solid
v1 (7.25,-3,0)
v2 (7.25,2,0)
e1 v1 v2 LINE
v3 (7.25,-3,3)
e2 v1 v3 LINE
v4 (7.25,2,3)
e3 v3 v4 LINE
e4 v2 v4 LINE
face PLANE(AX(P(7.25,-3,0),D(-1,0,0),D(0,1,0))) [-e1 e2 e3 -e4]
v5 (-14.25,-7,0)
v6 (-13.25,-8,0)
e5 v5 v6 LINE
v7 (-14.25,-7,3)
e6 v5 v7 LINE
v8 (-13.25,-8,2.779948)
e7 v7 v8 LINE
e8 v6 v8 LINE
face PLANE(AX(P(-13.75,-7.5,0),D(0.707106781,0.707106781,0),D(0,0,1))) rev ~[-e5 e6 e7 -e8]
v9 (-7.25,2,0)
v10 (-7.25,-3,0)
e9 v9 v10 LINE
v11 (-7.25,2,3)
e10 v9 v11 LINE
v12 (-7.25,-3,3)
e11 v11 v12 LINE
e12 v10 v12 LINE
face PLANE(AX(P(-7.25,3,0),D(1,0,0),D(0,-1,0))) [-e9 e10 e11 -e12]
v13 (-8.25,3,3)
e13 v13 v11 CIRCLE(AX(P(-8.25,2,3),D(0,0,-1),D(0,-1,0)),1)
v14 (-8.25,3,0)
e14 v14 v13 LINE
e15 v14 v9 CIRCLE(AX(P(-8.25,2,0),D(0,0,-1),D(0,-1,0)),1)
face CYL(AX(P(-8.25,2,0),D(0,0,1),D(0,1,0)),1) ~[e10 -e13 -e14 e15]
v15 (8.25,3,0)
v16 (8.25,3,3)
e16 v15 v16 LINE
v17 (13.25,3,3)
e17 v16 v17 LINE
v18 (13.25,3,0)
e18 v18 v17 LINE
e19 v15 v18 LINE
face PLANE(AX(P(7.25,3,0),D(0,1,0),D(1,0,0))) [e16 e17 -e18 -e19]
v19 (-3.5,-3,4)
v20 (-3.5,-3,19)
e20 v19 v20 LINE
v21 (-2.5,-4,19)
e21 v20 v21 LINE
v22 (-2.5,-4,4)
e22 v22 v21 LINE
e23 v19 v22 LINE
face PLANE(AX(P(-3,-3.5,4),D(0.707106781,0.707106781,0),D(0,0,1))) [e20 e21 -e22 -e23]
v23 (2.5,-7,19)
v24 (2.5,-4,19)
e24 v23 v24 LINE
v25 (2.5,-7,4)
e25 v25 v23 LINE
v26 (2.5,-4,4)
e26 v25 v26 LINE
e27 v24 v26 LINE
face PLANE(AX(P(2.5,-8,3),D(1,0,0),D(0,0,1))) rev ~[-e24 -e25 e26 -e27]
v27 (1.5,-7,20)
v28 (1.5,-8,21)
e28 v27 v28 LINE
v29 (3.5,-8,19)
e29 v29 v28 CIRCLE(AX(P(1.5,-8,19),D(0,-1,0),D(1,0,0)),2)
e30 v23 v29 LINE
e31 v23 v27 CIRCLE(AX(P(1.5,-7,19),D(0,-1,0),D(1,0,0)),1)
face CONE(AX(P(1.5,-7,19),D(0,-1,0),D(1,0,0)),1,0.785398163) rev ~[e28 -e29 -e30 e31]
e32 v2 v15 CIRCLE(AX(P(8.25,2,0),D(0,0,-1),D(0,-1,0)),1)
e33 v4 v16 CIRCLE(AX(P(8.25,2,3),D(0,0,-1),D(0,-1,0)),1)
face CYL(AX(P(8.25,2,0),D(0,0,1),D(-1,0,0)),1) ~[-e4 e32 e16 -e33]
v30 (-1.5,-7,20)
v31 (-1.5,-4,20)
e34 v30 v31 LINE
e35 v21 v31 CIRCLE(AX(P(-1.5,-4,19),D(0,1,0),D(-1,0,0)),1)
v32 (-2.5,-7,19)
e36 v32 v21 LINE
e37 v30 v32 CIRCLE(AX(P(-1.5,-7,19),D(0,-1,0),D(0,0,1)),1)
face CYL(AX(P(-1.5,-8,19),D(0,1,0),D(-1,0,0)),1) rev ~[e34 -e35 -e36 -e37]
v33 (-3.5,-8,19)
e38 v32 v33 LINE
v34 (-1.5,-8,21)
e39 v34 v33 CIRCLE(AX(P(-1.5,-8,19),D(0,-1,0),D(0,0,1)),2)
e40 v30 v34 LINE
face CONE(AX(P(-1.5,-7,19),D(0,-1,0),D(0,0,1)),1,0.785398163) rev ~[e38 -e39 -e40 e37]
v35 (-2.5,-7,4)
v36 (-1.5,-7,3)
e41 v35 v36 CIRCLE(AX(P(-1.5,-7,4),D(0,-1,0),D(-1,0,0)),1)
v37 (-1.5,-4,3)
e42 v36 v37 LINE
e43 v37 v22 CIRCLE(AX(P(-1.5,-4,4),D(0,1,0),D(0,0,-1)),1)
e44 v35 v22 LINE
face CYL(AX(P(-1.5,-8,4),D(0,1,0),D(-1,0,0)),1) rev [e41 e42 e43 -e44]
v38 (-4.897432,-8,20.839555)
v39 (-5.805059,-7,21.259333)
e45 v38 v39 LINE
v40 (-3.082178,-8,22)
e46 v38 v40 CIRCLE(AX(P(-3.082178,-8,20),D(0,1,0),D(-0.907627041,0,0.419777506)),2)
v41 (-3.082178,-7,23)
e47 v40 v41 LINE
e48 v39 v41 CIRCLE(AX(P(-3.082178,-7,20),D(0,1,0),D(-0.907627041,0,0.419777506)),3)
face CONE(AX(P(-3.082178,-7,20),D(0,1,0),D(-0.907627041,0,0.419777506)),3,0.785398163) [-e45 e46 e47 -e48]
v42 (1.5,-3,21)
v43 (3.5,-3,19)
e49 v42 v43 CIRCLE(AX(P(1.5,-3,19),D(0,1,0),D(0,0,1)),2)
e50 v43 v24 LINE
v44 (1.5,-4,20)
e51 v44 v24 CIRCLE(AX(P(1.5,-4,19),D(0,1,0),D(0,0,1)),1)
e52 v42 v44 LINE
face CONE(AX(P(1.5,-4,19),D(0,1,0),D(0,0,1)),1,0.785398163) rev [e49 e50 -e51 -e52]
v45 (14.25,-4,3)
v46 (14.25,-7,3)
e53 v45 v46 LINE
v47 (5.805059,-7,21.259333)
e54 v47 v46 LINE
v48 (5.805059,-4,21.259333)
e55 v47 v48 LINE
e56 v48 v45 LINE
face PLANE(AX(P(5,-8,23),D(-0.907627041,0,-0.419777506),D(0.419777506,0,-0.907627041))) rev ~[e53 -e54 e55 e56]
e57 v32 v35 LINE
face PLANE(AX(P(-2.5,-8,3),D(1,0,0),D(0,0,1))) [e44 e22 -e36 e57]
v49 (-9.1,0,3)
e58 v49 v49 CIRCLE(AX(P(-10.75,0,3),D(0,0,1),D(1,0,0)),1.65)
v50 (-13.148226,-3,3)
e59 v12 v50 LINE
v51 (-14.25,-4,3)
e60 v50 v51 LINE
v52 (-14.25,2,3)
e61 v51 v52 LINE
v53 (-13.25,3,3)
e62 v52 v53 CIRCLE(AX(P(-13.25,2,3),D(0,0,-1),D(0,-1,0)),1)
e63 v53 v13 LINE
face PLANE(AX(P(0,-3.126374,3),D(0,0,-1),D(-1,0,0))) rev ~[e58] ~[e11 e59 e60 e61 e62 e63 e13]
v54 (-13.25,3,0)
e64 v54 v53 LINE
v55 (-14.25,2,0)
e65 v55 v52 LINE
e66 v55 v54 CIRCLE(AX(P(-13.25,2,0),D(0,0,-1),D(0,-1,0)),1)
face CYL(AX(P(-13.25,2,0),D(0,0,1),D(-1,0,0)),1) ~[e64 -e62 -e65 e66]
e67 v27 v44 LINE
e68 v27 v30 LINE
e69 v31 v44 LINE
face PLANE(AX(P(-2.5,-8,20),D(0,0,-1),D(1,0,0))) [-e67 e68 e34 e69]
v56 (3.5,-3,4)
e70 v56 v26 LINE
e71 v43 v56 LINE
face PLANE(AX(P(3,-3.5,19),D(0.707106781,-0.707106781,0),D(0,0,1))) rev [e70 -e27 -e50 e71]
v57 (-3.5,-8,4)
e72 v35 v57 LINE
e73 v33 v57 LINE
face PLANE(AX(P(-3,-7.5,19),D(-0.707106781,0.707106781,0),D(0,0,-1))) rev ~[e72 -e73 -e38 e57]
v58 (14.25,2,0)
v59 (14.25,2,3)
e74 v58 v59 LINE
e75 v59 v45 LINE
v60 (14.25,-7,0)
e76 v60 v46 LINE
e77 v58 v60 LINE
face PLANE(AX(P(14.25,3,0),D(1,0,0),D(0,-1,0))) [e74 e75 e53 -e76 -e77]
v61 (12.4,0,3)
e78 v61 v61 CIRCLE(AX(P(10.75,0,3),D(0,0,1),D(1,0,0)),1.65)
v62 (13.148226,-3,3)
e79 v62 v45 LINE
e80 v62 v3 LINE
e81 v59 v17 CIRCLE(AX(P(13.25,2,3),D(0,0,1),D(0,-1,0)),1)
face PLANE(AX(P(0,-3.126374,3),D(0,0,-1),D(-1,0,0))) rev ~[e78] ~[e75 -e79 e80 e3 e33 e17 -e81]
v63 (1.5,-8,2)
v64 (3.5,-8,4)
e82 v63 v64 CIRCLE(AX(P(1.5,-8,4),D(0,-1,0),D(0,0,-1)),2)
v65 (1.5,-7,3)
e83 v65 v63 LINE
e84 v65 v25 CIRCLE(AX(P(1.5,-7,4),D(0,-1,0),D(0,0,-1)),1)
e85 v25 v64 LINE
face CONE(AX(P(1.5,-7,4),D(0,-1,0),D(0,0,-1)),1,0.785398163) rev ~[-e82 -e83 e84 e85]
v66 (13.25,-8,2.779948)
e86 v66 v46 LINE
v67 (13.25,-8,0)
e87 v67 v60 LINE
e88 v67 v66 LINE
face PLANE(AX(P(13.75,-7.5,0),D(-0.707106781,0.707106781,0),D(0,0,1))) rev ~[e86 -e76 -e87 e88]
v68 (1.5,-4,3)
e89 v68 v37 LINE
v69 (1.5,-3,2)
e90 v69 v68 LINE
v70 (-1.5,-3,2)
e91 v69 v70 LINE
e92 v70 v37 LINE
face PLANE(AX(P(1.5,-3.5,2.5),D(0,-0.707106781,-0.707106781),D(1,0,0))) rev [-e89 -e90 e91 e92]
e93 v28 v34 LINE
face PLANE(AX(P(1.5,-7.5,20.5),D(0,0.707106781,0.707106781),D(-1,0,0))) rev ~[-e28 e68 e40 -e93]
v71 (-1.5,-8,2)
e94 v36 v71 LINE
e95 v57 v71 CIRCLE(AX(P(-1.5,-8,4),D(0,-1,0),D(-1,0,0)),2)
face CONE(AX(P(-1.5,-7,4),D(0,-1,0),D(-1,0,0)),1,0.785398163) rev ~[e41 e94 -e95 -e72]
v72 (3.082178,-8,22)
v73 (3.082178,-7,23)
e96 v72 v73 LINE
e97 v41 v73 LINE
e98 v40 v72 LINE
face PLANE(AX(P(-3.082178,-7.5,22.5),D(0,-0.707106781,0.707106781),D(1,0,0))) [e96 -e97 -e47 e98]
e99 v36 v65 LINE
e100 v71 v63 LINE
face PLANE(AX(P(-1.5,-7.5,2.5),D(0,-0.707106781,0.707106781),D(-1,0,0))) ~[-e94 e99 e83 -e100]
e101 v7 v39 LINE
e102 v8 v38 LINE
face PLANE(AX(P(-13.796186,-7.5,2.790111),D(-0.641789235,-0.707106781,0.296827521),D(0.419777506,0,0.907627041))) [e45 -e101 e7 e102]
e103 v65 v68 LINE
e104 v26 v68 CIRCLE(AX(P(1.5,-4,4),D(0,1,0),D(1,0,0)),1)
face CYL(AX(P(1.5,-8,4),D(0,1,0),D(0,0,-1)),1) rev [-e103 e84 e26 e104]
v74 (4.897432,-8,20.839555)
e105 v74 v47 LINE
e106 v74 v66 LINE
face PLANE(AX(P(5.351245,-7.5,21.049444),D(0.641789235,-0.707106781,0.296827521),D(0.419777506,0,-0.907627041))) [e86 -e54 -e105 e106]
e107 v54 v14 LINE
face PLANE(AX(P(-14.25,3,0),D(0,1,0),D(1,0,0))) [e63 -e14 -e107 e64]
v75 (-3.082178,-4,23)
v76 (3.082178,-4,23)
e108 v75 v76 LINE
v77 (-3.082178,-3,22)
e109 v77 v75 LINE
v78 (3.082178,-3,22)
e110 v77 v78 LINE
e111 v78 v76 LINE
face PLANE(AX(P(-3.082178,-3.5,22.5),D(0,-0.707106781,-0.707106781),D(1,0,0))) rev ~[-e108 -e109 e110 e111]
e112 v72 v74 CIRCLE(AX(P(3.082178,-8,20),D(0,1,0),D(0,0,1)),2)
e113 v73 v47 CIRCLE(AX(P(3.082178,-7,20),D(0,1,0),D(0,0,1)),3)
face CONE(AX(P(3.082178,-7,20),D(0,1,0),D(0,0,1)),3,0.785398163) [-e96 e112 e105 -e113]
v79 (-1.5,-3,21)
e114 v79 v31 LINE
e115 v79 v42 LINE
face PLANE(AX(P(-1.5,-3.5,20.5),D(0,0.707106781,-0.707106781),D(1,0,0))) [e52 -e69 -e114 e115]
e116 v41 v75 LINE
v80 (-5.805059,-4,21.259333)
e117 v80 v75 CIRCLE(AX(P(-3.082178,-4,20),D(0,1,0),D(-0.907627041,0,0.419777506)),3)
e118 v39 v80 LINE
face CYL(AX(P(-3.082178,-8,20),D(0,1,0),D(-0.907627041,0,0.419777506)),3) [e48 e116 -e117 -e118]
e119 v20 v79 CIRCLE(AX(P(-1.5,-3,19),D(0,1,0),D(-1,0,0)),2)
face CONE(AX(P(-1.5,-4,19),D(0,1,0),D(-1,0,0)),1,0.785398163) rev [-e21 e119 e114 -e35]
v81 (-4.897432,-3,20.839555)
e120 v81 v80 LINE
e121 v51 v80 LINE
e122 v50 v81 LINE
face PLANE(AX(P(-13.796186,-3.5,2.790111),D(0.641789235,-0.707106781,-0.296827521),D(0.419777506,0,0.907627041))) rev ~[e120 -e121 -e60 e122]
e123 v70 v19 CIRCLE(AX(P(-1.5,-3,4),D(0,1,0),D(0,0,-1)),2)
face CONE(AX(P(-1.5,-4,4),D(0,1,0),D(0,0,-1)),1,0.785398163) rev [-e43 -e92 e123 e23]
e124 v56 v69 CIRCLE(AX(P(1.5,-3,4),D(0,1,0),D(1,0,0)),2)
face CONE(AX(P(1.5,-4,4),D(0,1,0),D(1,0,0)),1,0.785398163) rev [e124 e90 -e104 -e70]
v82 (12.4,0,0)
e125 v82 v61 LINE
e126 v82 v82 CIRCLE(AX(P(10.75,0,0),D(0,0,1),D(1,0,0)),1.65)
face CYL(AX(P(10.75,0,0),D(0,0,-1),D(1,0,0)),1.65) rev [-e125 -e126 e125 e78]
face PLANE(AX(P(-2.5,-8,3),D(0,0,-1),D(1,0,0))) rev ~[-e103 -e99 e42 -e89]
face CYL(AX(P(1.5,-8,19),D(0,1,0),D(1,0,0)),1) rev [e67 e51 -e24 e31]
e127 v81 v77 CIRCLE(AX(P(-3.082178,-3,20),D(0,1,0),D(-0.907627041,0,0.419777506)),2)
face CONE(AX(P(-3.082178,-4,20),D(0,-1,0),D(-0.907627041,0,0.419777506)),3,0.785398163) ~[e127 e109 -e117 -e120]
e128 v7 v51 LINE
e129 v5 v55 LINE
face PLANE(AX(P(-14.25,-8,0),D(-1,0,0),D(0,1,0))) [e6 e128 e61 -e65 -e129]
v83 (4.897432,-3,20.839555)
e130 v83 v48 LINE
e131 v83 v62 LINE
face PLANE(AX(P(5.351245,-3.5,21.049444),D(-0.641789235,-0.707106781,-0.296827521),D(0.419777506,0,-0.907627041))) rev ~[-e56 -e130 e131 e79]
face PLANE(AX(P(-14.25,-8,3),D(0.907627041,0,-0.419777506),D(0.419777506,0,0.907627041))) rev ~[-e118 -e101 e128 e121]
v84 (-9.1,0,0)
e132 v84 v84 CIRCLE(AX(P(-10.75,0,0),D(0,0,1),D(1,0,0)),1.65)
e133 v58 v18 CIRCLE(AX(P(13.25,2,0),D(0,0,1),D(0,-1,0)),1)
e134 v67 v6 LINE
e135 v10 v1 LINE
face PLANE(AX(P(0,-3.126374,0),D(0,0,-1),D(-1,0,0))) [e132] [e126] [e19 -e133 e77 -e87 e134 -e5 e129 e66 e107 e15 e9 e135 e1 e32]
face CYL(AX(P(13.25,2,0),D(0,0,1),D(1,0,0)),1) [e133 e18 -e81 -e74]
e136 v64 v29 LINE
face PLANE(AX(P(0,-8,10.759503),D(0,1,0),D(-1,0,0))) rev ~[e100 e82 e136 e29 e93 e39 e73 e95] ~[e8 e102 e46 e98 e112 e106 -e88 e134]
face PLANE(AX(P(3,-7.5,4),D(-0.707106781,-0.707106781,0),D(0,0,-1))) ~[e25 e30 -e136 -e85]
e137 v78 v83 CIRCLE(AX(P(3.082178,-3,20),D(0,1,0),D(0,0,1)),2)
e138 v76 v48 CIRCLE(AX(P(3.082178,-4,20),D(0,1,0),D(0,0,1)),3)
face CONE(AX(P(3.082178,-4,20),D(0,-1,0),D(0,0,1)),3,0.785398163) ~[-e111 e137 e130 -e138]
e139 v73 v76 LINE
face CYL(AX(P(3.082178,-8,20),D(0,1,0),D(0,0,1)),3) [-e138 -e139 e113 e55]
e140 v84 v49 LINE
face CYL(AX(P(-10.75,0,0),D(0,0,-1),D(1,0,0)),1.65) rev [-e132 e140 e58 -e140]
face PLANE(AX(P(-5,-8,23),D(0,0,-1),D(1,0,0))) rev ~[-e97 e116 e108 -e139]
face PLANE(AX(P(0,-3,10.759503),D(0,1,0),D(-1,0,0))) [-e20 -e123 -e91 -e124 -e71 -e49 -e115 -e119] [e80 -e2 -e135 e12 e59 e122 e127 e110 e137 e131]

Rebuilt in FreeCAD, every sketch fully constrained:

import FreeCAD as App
import Part
import Sketcher

V = App.Vector


def edges_at(feature, points):
    """Names of the edges that pass closest to the given points."""
    edges = feature.Shape.Edges
    near = lambda p: min(range(len(edges)), key=lambda i: edges[i].distToShape(Part.Vertex(*p))[0])
    return sorted({f"Edge{near(p) + 1}" for p in points})


def add_polygon(sketch, points):
    """Adds a closed chain of lines whose ends are joined by coincident constraints."""
    first, n = sketch.GeometryCount, len(points)
    for a, b in zip(points, points[1:] + points[:1]):
        sketch.addGeometry(Part.LineSegment(App.Vector(*a, 0), App.Vector(*b, 0)), False)
    for i in range(n):
        sketch.addConstraint(Sketcher.Constraint("Coincident", first + i, 2, first + (i + 1) % n, 1))

doc = App.newDocument("Part")
body = doc.addObject("PartDesign::Body", "Body")

# Sketch on XY plane
sketch1 = body.newObject("Sketcher::SketchObject", "Sketch")
sketch1.AttachmentSupport = (doc.getObject("XY_Plane"), [""])
sketch1.MapMode = "FlatFace"
add_polygon(sketch1, [(7.2, -3), (-7.2, -3), (-7.2, 3), (-14.2, 3), (-14.2, -8), (14.2, -8), (14.2, 3), (7.2, 3)])  # lines 0-7
sketch1.addGeometry(Part.Circle(V(10.8, 0, 0), V(0, 0, 1), 1.6), False)  # 8
sketch1.addGeometry(Part.Circle(V(-10.8, 0, 0), V(0, 0, 1), 1.6), False)  # 9
sketch1.addConstraint([
    Sketcher.Constraint("Horizontal", 0),
    Sketcher.Constraint("Vertical", 1),
    Sketcher.Constraint("Horizontal", 2),
    Sketcher.Constraint("Vertical", 3),
    Sketcher.Constraint("Horizontal", 4),
    Sketcher.Constraint("Vertical", 5),
    Sketcher.Constraint("Horizontal", 6),
    Sketcher.Constraint("Vertical", 7),
    Sketcher.Constraint("Equal", 8, 9),
    Sketcher.Constraint("Symmetric", 8, 3, 9, 3, -1, 1),
    Sketcher.Constraint("Symmetric", 0, 2, 6, 2, -1, 1),
    Sketcher.Constraint("Symmetric", 2, 2, 5, 2, -2),
    Sketcher.Constraint("PointOnObject", 8, 3, -1),
    Sketcher.Constraint("Diameter", 8, 3.3),
    Sketcher.Constraint("DistanceX", 2, 2, 2, 1, 7.0),
    Sketcher.Constraint("DistanceY", 1, 1, 1, 2, 6.0),
    Sketcher.Constraint("DistanceY", 3, 2, 3, 1, 11.0),
    Sketcher.Constraint("DistanceX", 0, 2, 0, 1, 14.5),
    Sketcher.Constraint("DistanceX", 0, 2, 8, 3, 18.0),
])
pad1 = body.newObject("PartDesign::Pad", "Pad")
pad1.Profile = sketch1
pad1.Length = 3

# Sketch on XZ plane
sketch2 = body.newObject("Sketcher::SketchObject", "Sketch001")
sketch2.AttachmentSupport = (doc.getObject("XZ_Plane"), [""])
sketch2.MapMode = "FlatFace"
sketch2.AttachmentOffset = App.Placement(V(0, 0, 8), App.Rotation())
add_polygon(sketch2, [(-5, 23), (-14, 3), (14, 3), (5, 23)])  # lines 0-3
sketch2.addConstraint([
    Sketcher.Constraint("Horizontal", 1),
    Sketcher.Constraint("Horizontal", 3),
    Sketcher.Constraint("Equal", 0, 2),
    Sketcher.Constraint("DistanceX", 3, 2, 3, 1, 10.0),
    Sketcher.Constraint("DistanceX", 1, 1, 1, 2, 28.5),
    Sketcher.Constraint("DistanceY", -1, 1, 0, 2, 3.0),
    Sketcher.Constraint("DistanceX", -1, 1, 2, 2, 5.0),
    Sketcher.Constraint("DistanceY", -1, 1, 2, 2, 23.0),
])
pad2 = body.newObject("PartDesign::Pad", "Pad001")
pad2.Profile = sketch2
pad2.Length = 5
pad2.Reversed = True

# Sketch on XZ plane
sketch3 = body.newObject("Sketcher::SketchObject", "Sketch002")
sketch3.AttachmentSupport = (doc.getObject("XZ_Plane"), [""])
sketch3.MapMode = "FlatFace"
sketch3.AttachmentOffset = App.Placement(V(0, 0, 8), App.Rotation())
add_polygon(sketch3, [(-2, 20), (-2, 3), (2, 3), (2, 20)])  # lines 0-3
sketch3.addConstraint([
    Sketcher.Constraint("Vertical", 0),
    Sketcher.Constraint("Horizontal", 1),
    Sketcher.Constraint("Vertical", 2),
    Sketcher.Constraint("Horizontal", 3),
    Sketcher.Constraint("DistanceX", 1, 1, 1, 2, 5.0),
    Sketcher.Constraint("DistanceY", 0, 2, 0, 1, 17.0),
    Sketcher.Constraint("DistanceY", -1, 1, 0, 2, 3.0),
    Sketcher.Constraint("DistanceX", 0, 2, -1, 1, 2.5),
])
pocket1 = body.newObject("PartDesign::Pocket", "Pocket")
pocket1.Profile = sketch3
pocket1.Type = "ThroughAll"
doc.recompute()

fillet = body.newObject("PartDesign::Fillet", "Fillet")
fillet.Base = (pocket1, edges_at(pocket1, [(-5, -5.5, 23), (5, -5.5, 23)]))
fillet.Radius = 3
doc.recompute()

fillet2 = body.newObject("PartDesign::Fillet", "Fillet001")
fillet2.Base = (fillet, edges_at(fillet, [
    (7.25, 3, 1.5),
    (14.25, 3, 1.5),
    (-14.25, 3, 1.5),
    (-7.25, 3, 1.5),
]))
fillet2.Radius = 1
doc.recompute()

chamfer = body.newObject("PartDesign::Chamfer", "Chamfer")
chamfer.Base = (fillet2, edges_at(fillet2, [
    (14.25, -8, 1.5),
    (-14.25, -8, 1.5),
    (10.028, -3, 12.13),
    (10.028, -8, 12.13),
    (0, -8, 23),
    (0, -3, 23),
    (-10.028, -8, 12.13),
    (4.698, -8, 22.528),
    (-4.698, -8, 22.528),
    (-10.028, -3, 12.13),
    (4.698, -3, 22.528),
    (-4.698, -3, 22.528),
]))
chamfer.Size = 1
doc.recompute()

fillet3 = body.newObject("PartDesign::Fillet", "Fillet002")
fillet3.Base = (chamfer, edges_at(chamfer, [
    (2.5, -5.5, 20),
    (2.5, -5.5, 3),
    (-2.5, -5.5, 3),
    (-2.5, -5.5, 20),
]))
fillet3.Radius = 1
doc.recompute()

chamfer2 = body.newObject("PartDesign::Chamfer", "Chamfer001")
chamfer2.Base = (fillet3, edges_at(fillet3, [
    (2.5, -8, 11.5),
    (2.5, -3, 11.5),
    (0, -8, 3),
    (0, -3, 3),
    (-2.5, -8, 11.5),
    (-2.5, -3, 11.5),
    (0, -8, 20),
    (0, -3, 20),
    (2.207, -8, 3.293),
    (2.207, -3, 3.293),
    (-2.207, -8, 3.293),
    (-2.207, -3, 3.293),
    (2.207, -8, 19.707),
    (2.207, -3, 19.707),
    (-2.207, -8, 19.707),
    (-2.207, -3, 19.707),
]))
chamfer2.Size = 1

doc.recompute()
